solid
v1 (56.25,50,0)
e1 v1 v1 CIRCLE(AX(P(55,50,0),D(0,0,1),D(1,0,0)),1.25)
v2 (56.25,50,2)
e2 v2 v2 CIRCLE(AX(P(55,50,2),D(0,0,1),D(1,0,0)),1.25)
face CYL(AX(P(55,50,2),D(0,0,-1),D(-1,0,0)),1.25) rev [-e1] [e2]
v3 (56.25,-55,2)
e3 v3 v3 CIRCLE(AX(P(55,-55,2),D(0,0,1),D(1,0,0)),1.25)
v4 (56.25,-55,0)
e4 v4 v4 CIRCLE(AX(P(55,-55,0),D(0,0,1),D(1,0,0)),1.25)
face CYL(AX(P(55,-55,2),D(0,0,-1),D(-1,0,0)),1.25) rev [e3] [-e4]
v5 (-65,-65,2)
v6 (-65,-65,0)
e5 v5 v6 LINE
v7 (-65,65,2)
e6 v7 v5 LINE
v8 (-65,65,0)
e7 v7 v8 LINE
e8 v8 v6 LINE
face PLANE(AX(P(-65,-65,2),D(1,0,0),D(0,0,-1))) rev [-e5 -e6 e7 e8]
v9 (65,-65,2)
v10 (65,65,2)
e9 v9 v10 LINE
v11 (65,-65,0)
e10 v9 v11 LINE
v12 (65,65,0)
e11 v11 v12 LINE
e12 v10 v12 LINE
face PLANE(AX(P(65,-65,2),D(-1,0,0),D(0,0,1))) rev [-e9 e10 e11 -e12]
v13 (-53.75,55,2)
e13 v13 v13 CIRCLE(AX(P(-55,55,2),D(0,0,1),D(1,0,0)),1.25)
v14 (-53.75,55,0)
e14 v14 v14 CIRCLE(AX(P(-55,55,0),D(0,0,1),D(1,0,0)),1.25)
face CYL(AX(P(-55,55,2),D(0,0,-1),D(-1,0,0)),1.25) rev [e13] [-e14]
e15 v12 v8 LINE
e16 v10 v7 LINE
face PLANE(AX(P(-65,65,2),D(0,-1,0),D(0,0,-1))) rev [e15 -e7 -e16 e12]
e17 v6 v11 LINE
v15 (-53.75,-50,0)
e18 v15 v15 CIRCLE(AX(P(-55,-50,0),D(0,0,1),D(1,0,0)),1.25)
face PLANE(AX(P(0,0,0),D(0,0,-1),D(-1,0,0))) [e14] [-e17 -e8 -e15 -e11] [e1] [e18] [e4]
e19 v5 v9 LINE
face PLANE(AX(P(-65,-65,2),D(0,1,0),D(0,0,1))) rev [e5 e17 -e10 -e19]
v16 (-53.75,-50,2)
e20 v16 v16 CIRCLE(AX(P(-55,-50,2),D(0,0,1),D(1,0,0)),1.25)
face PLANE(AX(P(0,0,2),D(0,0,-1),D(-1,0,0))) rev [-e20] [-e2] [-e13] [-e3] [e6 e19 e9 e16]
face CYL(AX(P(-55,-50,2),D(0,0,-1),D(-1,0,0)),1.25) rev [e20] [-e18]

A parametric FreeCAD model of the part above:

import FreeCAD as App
import Part
import Sketcher

V = App.Vector


def add_polygon(sketch, points):
    """Adds a closed chain of lines whose ends are joined by coincident constraints."""
    first, n = sketch.GeometryCount, len(points)
    for a, b in zip(points, points[1:] + points[:1]):
        sketch.addGeometry(Part.LineSegment(App.Vector(*a, 0), App.Vector(*b, 0)), False)
    for i in range(n):
        sketch.addConstraint(Sketcher.Constraint("Coincident", first + i, 2, first + (i + 1) % n, 1))

doc = App.newDocument("Part")
body = doc.addObject("PartDesign::Body", "Body")

sketch1 = body.newObject("Sketcher::SketchObject", "Sketch")
sketch1.AttachmentSupport = (doc.getObject("XY_Plane"), [""])
sketch1.MapMode = "FlatFace"
add_polygon(sketch1, [(-65, 65), (-65, -65), (65, -65), (65, 65)])
sketch1.addGeometry(Part.Circle(V(-55, -50, 0), V(0, 0, 1), 1.2), False)
sketch1.addGeometry(Part.Circle(V(55, -55, 0), V(0, 0, 1), 1.2), False)
sketch1.addGeometry(Part.Circle(V(-55, 55, 0), V(0, 0, 1), 1.2), False)
sketch1.addGeometry(Part.Circle(V(55, 50, 0), V(0, 0, 1), 1.2), False)
sketch1.addConstraint([
    Sketcher.Constraint("Vertical", 0),
    Sketcher.Constraint("Horizontal", 1),
    Sketcher.Constraint("Vertical", 2),
    Sketcher.Constraint("Horizontal", 3),
    Sketcher.Constraint("Equal", 4, 5),
    Sketcher.Constraint("Equal", 5, 6),
    Sketcher.Constraint("Equal", 6, 7),
    Sketcher.Constraint("Symmetric", 5, 3, 6, 3, -1, 1),
    Sketcher.Constraint("Symmetric", 4, 3, 7, 3, -1, 1),
    Sketcher.Constraint("Symmetric", 0, 2, 2, 2, -1, 1),
    Sketcher.Constraint("Vertical", 4, 3, 6, 3),
    Sketcher.Constraint("Equal", 3, 0),
    Sketcher.Constraint("Diameter", 4, 2.5),
    Sketcher.Constraint("DistanceX", 1, 1, 1, 2, 130.0),
    Sketcher.Constraint("DistanceX", 4, 3, -1, 1, 55.0),
    Sketcher.Constraint("DistanceY", 4, 3, -1, 1, 50.0),
    Sketcher.Constraint("DistanceY", 5, 3, -1, 1, 55.0),
])
pad1 = body.newObject("PartDesign::Pad", "Pad")
pad1.Profile = sketch1
pad1.Length = 2

doc.recompute()
